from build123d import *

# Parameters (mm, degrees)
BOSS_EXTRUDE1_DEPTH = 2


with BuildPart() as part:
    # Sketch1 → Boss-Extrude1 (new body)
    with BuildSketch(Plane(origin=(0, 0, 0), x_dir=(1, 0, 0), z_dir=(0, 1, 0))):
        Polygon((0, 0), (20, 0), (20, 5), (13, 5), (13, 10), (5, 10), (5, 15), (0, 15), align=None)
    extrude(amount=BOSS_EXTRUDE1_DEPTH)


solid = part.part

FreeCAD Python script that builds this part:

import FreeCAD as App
import Part
import Sketcher
from FreeCAD import Vector

doc = App.newDocument("Part")
body = doc.addObject("PartDesign::Body", "Body")

# Sketch on XZ plane
sketch1 = body.newObject("Sketcher::SketchObject", "Sketch")
sketch1.AttachmentSupport = (doc.getObject("XZ_Plane"), [""])
sketch1.MapMode = "FlatFace"
sketch1.addGeometry(Part.LineSegment(Vector(0, 0, 0), Vector(20, 0, 0)), False)
sketch1.addGeometry(Part.LineSegment(Vector(20, 0, 0), Vector(20, -5, 0)), False)
sketch1.addGeometry(Part.LineSegment(Vector(20, -5, 0), Vector(13, -5, 0)), False)
sketch1.addGeometry(Part.LineSegment(Vector(13, -5, 0), Vector(13, -10, 0)), False)
sketch1.addGeometry(Part.LineSegment(Vector(13, -10, 0), Vector(5, -10, 0)), False)
sketch1.addGeometry(Part.LineSegment(Vector(5, -10, 0), Vector(5, -15, 0)), False)
sketch1.addGeometry(Part.LineSegment(Vector(5, -15, 0), Vector(0, -15, 0)), False)
sketch1.addGeometry(Part.LineSegment(Vector(0, -15, 0), Vector(0, 0, 0)), False)
sketch1.addConstraint(Sketcher.Constraint("Coincident", 0, 2, 1, 1))
sketch1.addConstraint(Sketcher.Constraint("Coincident", 1, 2, 2, 1))
sketch1.addConstraint(Sketcher.Constraint("Coincident", 2, 2, 3, 1))
sketch1.addConstraint(Sketcher.Constraint("Coincident", 3, 2, 4, 1))
sketch1.addConstraint(Sketcher.Constraint("Coincident", 4, 2, 5, 1))
sketch1.addConstraint(Sketcher.Constraint("Coincident", 5, 2, 6, 1))
sketch1.addConstraint(Sketcher.Constraint("Coincident", 6, 2, 7, 1))
sketch1.addConstraint(Sketcher.Constraint("Coincident", 7, 2, 0, 1))
sketch1.addConstraint(Sketcher.Constraint("Horizontal", 0))
sketch1.addConstraint(Sketcher.Constraint("Vertical", 1))
sketch1.addConstraint(Sketcher.Constraint("Horizontal", 2))
sketch1.addConstraint(Sketcher.Constraint("Vertical", 3))
sketch1.addConstraint(Sketcher.Constraint("Horizontal", 4))
sketch1.addConstraint(Sketcher.Constraint("Vertical", 5))
sketch1.addConstraint(Sketcher.Constraint("Horizontal", 6))
sketch1.addConstraint(Sketcher.Constraint("Vertical", 7))
sketch1.addConstraint(Sketcher.Constraint("Coincident", 7, 2, -1, 1))
sketch1.addConstraint(Sketcher.Constraint("Equal", 6, 1))
sketch1.addConstraint(Sketcher.Constraint("Equal", 1, 3))
sketch1.addConstraint(Sketcher.Constraint("Equal", 3, 5))
sketch1.addConstraint(Sketcher.Constraint("DistanceX", 0, 1, 0, 2, 20.0))
sketch1.addConstraint(Sketcher.Constraint("DistanceX", 2, 2, 2, 1, 7.0))
sketch1.addConstraint(Sketcher.Constraint("DistanceX", 4, 2, 4, 1, 8.0))
pad1 = body.newObject("PartDesign::Pad", "Pad")
pad1.Profile = sketch1
pad1.Length = 2
pad1.Reversed = True

doc.recompute()
